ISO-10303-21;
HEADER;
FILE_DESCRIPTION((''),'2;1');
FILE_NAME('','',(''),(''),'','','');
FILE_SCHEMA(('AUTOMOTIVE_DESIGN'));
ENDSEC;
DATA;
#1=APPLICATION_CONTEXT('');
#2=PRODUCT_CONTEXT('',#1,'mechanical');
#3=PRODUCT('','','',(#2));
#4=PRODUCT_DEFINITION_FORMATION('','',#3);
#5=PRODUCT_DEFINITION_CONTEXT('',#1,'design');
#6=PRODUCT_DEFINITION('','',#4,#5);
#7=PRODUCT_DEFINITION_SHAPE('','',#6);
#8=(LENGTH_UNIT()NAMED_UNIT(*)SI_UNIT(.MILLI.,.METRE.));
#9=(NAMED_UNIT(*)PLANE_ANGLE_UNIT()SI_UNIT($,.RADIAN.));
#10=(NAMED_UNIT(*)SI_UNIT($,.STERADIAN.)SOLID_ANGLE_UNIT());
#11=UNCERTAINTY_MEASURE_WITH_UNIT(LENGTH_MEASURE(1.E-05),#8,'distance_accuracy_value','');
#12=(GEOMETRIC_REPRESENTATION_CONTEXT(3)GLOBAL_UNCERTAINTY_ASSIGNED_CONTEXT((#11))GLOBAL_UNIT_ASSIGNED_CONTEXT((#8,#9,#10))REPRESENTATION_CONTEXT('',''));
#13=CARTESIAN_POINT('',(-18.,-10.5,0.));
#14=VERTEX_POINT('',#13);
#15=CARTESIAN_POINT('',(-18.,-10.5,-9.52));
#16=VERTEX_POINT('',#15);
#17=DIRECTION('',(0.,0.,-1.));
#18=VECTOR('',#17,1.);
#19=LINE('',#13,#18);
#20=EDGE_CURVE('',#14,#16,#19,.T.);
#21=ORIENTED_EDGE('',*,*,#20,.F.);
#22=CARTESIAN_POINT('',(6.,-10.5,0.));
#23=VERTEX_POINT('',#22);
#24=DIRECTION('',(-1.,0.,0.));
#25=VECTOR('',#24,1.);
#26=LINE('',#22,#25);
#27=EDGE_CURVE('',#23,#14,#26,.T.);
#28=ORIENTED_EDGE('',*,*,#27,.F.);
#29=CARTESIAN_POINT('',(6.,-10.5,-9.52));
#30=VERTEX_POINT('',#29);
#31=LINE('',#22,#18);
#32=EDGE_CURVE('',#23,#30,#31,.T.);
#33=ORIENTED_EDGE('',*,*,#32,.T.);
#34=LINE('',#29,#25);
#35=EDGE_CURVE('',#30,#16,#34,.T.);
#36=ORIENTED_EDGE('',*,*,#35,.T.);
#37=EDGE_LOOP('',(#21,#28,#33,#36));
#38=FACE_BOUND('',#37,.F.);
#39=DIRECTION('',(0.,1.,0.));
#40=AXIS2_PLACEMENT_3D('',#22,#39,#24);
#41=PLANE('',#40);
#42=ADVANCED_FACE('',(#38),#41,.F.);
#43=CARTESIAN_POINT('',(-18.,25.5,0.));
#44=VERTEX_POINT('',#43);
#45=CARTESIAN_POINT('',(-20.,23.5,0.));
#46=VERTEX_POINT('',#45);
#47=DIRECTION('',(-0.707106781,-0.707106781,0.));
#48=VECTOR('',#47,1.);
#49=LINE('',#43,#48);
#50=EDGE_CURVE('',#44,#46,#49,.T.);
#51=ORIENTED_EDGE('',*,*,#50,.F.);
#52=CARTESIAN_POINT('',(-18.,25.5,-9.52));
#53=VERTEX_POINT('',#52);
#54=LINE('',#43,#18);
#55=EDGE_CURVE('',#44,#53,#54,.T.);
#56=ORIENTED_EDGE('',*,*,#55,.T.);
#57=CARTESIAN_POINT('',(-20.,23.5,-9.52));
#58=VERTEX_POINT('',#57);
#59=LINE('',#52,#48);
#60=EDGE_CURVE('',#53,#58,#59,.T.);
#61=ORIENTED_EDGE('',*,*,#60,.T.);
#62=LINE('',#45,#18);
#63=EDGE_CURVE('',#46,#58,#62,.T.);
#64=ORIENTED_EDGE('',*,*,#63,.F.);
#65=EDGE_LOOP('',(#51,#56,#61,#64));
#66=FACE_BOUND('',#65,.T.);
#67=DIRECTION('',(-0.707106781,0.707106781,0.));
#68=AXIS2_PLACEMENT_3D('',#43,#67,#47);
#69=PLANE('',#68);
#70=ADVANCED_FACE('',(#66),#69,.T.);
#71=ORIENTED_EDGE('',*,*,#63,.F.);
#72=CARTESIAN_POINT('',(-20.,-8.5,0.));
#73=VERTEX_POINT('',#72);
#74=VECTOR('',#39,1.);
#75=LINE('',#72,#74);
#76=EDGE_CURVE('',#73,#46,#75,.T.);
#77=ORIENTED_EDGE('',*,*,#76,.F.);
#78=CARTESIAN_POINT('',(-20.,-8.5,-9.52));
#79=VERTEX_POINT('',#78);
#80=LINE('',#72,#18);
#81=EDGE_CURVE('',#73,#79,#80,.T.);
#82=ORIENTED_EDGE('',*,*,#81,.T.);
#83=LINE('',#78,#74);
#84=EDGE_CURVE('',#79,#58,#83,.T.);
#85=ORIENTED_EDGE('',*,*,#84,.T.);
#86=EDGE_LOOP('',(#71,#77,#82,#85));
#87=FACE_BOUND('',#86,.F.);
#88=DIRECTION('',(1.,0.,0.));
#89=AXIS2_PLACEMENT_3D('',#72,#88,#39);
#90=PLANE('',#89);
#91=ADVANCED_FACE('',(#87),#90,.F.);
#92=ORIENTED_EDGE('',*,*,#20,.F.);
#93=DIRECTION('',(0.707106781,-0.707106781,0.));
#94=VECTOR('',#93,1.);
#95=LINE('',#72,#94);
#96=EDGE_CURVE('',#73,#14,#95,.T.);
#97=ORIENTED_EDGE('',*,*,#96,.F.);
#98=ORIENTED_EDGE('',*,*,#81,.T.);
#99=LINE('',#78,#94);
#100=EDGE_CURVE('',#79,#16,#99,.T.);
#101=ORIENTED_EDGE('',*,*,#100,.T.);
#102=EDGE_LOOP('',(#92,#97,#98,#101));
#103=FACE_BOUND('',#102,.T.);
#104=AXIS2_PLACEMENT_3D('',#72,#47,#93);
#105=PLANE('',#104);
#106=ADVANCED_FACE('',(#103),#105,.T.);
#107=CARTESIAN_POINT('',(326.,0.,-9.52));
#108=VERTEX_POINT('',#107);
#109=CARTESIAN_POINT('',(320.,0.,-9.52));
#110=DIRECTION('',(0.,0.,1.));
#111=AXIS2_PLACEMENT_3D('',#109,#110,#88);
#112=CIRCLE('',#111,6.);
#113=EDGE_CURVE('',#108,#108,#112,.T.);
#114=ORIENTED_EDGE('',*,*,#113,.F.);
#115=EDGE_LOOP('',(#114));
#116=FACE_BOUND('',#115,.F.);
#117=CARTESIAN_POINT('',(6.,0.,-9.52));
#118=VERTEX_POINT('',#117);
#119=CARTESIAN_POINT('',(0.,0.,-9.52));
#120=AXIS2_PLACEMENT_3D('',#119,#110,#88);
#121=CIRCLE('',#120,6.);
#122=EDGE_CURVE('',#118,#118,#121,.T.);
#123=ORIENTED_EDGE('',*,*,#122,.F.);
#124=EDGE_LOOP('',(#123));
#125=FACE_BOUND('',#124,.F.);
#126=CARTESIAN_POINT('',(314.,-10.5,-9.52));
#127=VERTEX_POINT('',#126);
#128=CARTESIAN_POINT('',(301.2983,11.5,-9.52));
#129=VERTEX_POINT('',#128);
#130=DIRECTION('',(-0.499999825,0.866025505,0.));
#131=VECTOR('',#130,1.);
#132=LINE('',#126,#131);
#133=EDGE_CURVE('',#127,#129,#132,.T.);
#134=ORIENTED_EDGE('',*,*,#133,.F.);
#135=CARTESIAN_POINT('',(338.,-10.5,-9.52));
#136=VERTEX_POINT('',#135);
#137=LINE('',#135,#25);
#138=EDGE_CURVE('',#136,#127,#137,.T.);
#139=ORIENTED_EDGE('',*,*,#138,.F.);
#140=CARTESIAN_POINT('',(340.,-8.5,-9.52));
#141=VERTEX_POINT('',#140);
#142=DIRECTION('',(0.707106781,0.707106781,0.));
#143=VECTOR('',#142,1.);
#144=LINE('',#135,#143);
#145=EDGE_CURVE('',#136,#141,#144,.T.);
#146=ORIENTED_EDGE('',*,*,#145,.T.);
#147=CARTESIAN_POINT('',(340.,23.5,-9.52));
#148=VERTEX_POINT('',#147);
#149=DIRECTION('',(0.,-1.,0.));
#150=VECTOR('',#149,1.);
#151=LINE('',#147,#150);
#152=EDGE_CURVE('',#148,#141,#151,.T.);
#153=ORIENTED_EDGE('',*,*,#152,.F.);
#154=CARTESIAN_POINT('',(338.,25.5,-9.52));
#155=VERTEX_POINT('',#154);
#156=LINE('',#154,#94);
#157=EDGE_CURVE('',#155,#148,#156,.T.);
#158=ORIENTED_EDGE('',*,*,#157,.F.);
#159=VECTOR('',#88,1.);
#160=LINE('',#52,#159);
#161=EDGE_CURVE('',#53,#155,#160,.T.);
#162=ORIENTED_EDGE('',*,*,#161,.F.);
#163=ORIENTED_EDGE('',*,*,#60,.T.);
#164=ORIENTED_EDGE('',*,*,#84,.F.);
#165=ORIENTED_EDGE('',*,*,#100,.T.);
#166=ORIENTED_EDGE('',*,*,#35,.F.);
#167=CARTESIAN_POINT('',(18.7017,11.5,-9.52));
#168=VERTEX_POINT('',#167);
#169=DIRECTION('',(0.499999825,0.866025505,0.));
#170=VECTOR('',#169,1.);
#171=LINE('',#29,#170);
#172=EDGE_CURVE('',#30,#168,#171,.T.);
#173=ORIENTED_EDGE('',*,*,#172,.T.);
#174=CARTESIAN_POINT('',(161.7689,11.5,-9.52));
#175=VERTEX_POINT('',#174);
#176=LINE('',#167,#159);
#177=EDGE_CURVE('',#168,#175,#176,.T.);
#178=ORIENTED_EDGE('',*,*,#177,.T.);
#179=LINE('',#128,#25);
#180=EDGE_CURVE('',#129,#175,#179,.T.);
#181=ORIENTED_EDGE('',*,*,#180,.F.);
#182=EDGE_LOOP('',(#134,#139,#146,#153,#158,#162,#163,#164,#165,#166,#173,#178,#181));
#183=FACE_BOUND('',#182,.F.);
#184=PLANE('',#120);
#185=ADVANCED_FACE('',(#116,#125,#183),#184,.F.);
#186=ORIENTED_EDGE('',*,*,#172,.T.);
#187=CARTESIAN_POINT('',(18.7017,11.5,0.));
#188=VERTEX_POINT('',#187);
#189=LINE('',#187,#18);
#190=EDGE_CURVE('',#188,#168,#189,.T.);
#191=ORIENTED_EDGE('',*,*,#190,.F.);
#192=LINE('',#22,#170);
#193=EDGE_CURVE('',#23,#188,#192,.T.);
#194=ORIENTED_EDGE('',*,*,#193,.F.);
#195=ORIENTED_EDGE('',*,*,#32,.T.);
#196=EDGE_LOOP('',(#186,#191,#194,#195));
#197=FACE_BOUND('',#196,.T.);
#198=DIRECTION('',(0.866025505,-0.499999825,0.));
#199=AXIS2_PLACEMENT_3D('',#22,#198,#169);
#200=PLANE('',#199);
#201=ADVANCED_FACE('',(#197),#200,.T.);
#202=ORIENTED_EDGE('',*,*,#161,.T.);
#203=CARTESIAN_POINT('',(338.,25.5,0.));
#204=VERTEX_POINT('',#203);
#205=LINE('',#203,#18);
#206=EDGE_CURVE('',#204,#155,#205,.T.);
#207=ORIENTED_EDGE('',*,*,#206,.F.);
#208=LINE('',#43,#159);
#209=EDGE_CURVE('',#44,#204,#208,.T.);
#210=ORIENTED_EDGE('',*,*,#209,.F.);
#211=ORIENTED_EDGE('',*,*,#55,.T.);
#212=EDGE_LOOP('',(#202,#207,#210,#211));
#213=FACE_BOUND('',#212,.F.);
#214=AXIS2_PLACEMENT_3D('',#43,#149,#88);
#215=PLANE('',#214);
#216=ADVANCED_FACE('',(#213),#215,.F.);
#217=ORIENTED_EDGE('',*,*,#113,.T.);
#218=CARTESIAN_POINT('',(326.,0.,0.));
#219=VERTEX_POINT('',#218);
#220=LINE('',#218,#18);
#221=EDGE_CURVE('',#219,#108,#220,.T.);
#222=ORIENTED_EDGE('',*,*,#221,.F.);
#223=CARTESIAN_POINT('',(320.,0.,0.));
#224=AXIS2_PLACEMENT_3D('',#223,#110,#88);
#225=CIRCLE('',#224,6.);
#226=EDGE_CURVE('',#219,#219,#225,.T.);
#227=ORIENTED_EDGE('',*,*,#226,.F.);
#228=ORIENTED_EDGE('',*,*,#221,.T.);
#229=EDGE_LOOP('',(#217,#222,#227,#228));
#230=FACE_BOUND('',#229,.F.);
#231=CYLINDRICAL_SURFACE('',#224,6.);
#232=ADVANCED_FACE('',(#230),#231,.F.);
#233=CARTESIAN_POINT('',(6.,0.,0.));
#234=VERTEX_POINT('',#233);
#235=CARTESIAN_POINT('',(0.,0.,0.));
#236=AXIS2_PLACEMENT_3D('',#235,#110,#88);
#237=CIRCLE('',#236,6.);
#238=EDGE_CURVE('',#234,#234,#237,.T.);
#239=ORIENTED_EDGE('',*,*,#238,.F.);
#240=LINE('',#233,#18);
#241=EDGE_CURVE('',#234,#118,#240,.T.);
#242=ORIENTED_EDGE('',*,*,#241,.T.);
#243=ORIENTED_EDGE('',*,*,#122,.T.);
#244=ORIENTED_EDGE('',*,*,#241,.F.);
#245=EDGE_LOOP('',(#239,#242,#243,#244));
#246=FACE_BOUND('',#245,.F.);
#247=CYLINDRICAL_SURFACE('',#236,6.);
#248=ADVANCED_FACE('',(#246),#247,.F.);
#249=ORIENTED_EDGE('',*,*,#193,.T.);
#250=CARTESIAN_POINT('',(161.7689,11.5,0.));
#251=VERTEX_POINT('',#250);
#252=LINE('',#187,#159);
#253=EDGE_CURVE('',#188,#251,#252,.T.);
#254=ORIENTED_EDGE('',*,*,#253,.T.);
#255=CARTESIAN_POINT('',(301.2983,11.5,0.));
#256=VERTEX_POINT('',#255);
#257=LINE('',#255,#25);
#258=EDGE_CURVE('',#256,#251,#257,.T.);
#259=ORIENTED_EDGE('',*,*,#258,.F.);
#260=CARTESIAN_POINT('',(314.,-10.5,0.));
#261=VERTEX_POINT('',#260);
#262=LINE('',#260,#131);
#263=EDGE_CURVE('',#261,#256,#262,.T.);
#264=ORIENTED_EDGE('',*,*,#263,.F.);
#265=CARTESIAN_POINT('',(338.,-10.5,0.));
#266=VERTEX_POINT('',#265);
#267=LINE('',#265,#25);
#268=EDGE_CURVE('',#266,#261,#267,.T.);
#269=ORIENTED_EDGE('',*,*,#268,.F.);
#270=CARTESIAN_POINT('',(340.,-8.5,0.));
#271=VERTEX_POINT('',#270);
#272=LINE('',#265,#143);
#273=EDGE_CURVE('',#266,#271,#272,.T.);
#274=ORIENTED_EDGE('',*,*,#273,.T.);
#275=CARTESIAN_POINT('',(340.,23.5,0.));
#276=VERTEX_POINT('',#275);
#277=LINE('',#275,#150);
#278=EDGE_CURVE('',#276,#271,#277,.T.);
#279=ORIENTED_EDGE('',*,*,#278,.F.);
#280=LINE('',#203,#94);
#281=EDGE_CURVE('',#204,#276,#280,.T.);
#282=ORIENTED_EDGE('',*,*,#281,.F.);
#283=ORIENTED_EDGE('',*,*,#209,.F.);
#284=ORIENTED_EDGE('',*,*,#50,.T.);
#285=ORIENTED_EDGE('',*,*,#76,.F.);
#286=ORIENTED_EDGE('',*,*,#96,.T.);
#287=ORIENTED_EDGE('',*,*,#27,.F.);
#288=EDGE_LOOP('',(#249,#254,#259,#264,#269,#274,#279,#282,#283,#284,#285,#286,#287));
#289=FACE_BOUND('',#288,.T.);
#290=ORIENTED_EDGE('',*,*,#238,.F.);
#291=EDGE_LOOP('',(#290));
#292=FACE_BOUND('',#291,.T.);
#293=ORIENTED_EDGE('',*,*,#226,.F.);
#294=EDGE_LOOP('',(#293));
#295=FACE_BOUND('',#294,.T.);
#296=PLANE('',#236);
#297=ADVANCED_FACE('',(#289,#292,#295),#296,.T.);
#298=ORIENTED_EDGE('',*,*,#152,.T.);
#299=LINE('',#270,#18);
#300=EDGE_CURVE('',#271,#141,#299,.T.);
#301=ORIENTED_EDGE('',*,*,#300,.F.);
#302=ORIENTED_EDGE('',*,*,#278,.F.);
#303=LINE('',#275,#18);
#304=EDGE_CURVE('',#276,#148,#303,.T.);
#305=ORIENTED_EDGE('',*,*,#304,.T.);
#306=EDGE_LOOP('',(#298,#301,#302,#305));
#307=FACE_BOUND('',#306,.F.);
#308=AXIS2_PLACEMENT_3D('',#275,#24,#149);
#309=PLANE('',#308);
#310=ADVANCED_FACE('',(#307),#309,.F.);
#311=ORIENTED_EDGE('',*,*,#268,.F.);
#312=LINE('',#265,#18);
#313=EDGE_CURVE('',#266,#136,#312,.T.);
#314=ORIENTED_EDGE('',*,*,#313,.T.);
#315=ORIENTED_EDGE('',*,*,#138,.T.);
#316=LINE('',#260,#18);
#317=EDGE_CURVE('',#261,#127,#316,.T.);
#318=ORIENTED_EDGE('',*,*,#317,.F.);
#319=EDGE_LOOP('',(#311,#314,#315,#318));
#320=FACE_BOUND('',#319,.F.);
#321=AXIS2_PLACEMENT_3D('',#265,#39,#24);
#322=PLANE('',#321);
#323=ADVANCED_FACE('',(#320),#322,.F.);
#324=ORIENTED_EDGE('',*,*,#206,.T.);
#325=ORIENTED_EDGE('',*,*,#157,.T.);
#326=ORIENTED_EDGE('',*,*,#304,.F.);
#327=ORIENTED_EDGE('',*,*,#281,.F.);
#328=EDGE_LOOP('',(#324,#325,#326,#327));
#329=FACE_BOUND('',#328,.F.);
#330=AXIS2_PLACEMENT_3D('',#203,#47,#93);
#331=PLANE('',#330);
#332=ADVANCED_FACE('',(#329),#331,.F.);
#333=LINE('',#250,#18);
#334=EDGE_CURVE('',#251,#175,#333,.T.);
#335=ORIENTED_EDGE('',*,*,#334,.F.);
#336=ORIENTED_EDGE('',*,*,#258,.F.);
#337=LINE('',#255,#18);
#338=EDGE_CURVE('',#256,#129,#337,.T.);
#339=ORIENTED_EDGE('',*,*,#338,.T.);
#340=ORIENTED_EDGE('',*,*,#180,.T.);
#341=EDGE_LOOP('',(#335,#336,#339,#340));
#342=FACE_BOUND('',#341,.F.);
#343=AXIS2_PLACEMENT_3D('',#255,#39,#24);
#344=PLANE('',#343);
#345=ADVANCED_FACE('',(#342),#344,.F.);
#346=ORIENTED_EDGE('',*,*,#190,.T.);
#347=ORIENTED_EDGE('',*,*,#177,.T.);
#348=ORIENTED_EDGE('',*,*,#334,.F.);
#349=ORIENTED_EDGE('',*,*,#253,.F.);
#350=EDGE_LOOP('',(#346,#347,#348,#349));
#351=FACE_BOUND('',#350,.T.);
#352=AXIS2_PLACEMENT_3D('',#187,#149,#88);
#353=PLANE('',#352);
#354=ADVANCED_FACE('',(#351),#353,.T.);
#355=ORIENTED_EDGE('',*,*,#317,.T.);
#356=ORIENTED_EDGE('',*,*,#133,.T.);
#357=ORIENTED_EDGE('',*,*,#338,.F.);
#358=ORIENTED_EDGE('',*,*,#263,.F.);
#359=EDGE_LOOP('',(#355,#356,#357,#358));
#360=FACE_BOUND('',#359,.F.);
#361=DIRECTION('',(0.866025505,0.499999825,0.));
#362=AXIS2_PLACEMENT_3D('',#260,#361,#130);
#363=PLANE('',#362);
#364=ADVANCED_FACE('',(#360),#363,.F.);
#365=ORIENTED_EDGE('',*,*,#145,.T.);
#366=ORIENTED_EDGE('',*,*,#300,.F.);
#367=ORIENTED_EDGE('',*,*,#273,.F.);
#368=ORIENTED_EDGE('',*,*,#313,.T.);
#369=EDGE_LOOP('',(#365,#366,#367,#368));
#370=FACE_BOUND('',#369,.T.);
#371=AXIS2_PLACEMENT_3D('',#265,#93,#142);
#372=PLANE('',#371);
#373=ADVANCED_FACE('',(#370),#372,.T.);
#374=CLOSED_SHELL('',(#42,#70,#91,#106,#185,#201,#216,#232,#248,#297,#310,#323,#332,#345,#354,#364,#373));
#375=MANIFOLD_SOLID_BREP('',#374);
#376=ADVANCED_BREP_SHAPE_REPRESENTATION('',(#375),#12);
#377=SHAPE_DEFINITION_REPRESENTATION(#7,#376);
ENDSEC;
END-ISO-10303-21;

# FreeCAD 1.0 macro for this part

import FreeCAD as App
import Part
import Sketcher
from FreeCAD import Vector
Q = App.Units.Quantity

doc = App.newDocument("Part")
params = doc.addObject("Spreadsheet::Sheet", "Params")
for row, (alias, value) in enumerate([
    ("sketch1_diameter", "12 mm"),
    ("sketch1_width", "24 mm"),
    ("sketch1_width2", "356 mm"),
    ("pad1_length", "9.52 mm"),
], start=1):
    params.set(f"A{row}", alias)
    params.set(f"B{row}", "=" + value)
    params.setAlias(f"B{row}", alias)

body = doc.addObject("PartDesign::Body", "Body")

sketch1 = body.newObject("Sketcher::SketchObject", "Sketch")
sketch1.AttachmentSupport = (doc.getObject("XY_Plane"), [""])
sketch1.MapMode = "FlatFace"
sketch1.addGeometry([
    Part.LineSegment(Vector(338, 25.5, 0), Vector(-18, 25.5, 0)),
    Part.LineSegment(Vector(-18, 25.5, 0), Vector(-20, 23.5, 0)),
    Part.LineSegment(Vector(-20, 23.5, 0), Vector(-20, -8.5, 0)),
    Part.LineSegment(Vector(-20, -8.5, 0), Vector(-18, -10.5, 0)),
    Part.LineSegment(Vector(-18, -10.5, 0), Vector(6, -10.5, 0)),
    Part.LineSegment(Vector(6, -10.5, 0), Vector(18.7017, 11.5, 0)),
    Part.LineSegment(Vector(18.7017, 11.5, 0), Vector(301.2983, 11.5, 0)),
    Part.LineSegment(Vector(301.2983, 11.5, 0), Vector(314, -10.5, 0)),
    Part.LineSegment(Vector(314, -10.5, 0), Vector(338, -10.5, 0)),
    Part.LineSegment(Vector(338, -10.5, 0), Vector(340, -8.5, 0)),
    Part.LineSegment(Vector(340, -8.5, 0), Vector(340, 23.5, 0)),
    Part.LineSegment(Vector(340, 23.5, 0), Vector(338, 25.5, 0)),
    Part.Circle(Vector(0, 0, 0), Vector(0, 0, 1), 6),
    Part.Circle(Vector(320, 0, 0), Vector(0, 0, 1), 6),
], False)
sketch1.addConstraint([
    Sketcher.Constraint("Coincident", 0, 2, 1, 1),
    Sketcher.Constraint("Coincident", 1, 2, 2, 1),
    Sketcher.Constraint("Coincident", 2, 2, 3, 1),
    Sketcher.Constraint("Coincident", 3, 2, 4, 1),
    Sketcher.Constraint("Coincident", 4, 2, 5, 1),
    Sketcher.Constraint("Coincident", 5, 2, 6, 1),
    Sketcher.Constraint("Coincident", 6, 2, 7, 1),
    Sketcher.Constraint("Coincident", 7, 2, 8, 1),
    Sketcher.Constraint("Coincident", 8, 2, 9, 1),
    Sketcher.Constraint("Coincident", 9, 2, 10, 1),
    Sketcher.Constraint("Coincident", 10, 2, 11, 1),
    Sketcher.Constraint("Coincident", 11, 2, 0, 1),
    Sketcher.Constraint("Horizontal", 0),
    Sketcher.Constraint("Vertical", 2),
    Sketcher.Constraint("Horizontal", 4),
    Sketcher.Constraint("Horizontal", 6),
    Sketcher.Constraint("Horizontal", 8),
    Sketcher.Constraint("Vertical", 10),
    Sketcher.Constraint("Coincident", 12, 3, -1, 1),
    Sketcher.Constraint("Equal", 12, 13),
    Sketcher.Constraint("PointOnObject", 13, 3, -1),
    Sketcher.Constraint("Perpendicular", 1, 3),
    Sketcher.Constraint("Perpendicular", 3, 9),
    Sketcher.Constraint("Perpendicular", 9, 11),
    Sketcher.Constraint("Horizontal", 4, 2, 7, 2),
    Sketcher.Constraint("Horizontal", 2, 2, 9, 2),
    Sketcher.Constraint("Horizontal", 1, 2, 10, 2),
    Sketcher.Constraint("Vertical", 0, 2, 3, 2),
    Sketcher.Constraint("Vertical", 8, 2, 11, 2),
    Sketcher.Constraint("Equal", 4, 8),
    Sketcher.Constraint("Equal", 5, 7),
    Sketcher.Constraint("Diameter", 12, 12.0),
    Sketcher.Constraint("DistanceX", 4, 1, 4, 2, 24.0),
    Sketcher.Constraint("DistanceX", 1, 2, 0, 2, 2.0),
    Sketcher.Constraint("DistanceY", 3, 2, 0, 2, 36.0),
    Sketcher.Constraint("DistanceY", 5, 2, 0, 2, 14.0),
    Sketcher.Constraint("DistanceX", 0, 2, 0, 1, 356.0),
    Sketcher.Constraint("Angle", 5, Q("60 deg")),
    Sketcher.Constraint("DistanceX", -1, 1, 13, 3, 320.0),
    Sketcher.Constraint("DistanceX", 0, 2, -1, 1, 18.0),
    Sketcher.Constraint("DistanceY", -1, 1, 0, 2, 25.5),
])
sketch1.setExpression("Constraints[31]", "Params.sketch1_diameter")
sketch1.setExpression("Constraints[32]", "Params.sketch1_width")
sketch1.setExpression("Constraints[36]", "Params.sketch1_width2")
pad1 = body.newObject("PartDesign::Pad", "Pad")
pad1.Profile = sketch1
pad1.setExpression("Length", "Params.pad1_length")
pad1.Reversed = True

doc.recompute()
